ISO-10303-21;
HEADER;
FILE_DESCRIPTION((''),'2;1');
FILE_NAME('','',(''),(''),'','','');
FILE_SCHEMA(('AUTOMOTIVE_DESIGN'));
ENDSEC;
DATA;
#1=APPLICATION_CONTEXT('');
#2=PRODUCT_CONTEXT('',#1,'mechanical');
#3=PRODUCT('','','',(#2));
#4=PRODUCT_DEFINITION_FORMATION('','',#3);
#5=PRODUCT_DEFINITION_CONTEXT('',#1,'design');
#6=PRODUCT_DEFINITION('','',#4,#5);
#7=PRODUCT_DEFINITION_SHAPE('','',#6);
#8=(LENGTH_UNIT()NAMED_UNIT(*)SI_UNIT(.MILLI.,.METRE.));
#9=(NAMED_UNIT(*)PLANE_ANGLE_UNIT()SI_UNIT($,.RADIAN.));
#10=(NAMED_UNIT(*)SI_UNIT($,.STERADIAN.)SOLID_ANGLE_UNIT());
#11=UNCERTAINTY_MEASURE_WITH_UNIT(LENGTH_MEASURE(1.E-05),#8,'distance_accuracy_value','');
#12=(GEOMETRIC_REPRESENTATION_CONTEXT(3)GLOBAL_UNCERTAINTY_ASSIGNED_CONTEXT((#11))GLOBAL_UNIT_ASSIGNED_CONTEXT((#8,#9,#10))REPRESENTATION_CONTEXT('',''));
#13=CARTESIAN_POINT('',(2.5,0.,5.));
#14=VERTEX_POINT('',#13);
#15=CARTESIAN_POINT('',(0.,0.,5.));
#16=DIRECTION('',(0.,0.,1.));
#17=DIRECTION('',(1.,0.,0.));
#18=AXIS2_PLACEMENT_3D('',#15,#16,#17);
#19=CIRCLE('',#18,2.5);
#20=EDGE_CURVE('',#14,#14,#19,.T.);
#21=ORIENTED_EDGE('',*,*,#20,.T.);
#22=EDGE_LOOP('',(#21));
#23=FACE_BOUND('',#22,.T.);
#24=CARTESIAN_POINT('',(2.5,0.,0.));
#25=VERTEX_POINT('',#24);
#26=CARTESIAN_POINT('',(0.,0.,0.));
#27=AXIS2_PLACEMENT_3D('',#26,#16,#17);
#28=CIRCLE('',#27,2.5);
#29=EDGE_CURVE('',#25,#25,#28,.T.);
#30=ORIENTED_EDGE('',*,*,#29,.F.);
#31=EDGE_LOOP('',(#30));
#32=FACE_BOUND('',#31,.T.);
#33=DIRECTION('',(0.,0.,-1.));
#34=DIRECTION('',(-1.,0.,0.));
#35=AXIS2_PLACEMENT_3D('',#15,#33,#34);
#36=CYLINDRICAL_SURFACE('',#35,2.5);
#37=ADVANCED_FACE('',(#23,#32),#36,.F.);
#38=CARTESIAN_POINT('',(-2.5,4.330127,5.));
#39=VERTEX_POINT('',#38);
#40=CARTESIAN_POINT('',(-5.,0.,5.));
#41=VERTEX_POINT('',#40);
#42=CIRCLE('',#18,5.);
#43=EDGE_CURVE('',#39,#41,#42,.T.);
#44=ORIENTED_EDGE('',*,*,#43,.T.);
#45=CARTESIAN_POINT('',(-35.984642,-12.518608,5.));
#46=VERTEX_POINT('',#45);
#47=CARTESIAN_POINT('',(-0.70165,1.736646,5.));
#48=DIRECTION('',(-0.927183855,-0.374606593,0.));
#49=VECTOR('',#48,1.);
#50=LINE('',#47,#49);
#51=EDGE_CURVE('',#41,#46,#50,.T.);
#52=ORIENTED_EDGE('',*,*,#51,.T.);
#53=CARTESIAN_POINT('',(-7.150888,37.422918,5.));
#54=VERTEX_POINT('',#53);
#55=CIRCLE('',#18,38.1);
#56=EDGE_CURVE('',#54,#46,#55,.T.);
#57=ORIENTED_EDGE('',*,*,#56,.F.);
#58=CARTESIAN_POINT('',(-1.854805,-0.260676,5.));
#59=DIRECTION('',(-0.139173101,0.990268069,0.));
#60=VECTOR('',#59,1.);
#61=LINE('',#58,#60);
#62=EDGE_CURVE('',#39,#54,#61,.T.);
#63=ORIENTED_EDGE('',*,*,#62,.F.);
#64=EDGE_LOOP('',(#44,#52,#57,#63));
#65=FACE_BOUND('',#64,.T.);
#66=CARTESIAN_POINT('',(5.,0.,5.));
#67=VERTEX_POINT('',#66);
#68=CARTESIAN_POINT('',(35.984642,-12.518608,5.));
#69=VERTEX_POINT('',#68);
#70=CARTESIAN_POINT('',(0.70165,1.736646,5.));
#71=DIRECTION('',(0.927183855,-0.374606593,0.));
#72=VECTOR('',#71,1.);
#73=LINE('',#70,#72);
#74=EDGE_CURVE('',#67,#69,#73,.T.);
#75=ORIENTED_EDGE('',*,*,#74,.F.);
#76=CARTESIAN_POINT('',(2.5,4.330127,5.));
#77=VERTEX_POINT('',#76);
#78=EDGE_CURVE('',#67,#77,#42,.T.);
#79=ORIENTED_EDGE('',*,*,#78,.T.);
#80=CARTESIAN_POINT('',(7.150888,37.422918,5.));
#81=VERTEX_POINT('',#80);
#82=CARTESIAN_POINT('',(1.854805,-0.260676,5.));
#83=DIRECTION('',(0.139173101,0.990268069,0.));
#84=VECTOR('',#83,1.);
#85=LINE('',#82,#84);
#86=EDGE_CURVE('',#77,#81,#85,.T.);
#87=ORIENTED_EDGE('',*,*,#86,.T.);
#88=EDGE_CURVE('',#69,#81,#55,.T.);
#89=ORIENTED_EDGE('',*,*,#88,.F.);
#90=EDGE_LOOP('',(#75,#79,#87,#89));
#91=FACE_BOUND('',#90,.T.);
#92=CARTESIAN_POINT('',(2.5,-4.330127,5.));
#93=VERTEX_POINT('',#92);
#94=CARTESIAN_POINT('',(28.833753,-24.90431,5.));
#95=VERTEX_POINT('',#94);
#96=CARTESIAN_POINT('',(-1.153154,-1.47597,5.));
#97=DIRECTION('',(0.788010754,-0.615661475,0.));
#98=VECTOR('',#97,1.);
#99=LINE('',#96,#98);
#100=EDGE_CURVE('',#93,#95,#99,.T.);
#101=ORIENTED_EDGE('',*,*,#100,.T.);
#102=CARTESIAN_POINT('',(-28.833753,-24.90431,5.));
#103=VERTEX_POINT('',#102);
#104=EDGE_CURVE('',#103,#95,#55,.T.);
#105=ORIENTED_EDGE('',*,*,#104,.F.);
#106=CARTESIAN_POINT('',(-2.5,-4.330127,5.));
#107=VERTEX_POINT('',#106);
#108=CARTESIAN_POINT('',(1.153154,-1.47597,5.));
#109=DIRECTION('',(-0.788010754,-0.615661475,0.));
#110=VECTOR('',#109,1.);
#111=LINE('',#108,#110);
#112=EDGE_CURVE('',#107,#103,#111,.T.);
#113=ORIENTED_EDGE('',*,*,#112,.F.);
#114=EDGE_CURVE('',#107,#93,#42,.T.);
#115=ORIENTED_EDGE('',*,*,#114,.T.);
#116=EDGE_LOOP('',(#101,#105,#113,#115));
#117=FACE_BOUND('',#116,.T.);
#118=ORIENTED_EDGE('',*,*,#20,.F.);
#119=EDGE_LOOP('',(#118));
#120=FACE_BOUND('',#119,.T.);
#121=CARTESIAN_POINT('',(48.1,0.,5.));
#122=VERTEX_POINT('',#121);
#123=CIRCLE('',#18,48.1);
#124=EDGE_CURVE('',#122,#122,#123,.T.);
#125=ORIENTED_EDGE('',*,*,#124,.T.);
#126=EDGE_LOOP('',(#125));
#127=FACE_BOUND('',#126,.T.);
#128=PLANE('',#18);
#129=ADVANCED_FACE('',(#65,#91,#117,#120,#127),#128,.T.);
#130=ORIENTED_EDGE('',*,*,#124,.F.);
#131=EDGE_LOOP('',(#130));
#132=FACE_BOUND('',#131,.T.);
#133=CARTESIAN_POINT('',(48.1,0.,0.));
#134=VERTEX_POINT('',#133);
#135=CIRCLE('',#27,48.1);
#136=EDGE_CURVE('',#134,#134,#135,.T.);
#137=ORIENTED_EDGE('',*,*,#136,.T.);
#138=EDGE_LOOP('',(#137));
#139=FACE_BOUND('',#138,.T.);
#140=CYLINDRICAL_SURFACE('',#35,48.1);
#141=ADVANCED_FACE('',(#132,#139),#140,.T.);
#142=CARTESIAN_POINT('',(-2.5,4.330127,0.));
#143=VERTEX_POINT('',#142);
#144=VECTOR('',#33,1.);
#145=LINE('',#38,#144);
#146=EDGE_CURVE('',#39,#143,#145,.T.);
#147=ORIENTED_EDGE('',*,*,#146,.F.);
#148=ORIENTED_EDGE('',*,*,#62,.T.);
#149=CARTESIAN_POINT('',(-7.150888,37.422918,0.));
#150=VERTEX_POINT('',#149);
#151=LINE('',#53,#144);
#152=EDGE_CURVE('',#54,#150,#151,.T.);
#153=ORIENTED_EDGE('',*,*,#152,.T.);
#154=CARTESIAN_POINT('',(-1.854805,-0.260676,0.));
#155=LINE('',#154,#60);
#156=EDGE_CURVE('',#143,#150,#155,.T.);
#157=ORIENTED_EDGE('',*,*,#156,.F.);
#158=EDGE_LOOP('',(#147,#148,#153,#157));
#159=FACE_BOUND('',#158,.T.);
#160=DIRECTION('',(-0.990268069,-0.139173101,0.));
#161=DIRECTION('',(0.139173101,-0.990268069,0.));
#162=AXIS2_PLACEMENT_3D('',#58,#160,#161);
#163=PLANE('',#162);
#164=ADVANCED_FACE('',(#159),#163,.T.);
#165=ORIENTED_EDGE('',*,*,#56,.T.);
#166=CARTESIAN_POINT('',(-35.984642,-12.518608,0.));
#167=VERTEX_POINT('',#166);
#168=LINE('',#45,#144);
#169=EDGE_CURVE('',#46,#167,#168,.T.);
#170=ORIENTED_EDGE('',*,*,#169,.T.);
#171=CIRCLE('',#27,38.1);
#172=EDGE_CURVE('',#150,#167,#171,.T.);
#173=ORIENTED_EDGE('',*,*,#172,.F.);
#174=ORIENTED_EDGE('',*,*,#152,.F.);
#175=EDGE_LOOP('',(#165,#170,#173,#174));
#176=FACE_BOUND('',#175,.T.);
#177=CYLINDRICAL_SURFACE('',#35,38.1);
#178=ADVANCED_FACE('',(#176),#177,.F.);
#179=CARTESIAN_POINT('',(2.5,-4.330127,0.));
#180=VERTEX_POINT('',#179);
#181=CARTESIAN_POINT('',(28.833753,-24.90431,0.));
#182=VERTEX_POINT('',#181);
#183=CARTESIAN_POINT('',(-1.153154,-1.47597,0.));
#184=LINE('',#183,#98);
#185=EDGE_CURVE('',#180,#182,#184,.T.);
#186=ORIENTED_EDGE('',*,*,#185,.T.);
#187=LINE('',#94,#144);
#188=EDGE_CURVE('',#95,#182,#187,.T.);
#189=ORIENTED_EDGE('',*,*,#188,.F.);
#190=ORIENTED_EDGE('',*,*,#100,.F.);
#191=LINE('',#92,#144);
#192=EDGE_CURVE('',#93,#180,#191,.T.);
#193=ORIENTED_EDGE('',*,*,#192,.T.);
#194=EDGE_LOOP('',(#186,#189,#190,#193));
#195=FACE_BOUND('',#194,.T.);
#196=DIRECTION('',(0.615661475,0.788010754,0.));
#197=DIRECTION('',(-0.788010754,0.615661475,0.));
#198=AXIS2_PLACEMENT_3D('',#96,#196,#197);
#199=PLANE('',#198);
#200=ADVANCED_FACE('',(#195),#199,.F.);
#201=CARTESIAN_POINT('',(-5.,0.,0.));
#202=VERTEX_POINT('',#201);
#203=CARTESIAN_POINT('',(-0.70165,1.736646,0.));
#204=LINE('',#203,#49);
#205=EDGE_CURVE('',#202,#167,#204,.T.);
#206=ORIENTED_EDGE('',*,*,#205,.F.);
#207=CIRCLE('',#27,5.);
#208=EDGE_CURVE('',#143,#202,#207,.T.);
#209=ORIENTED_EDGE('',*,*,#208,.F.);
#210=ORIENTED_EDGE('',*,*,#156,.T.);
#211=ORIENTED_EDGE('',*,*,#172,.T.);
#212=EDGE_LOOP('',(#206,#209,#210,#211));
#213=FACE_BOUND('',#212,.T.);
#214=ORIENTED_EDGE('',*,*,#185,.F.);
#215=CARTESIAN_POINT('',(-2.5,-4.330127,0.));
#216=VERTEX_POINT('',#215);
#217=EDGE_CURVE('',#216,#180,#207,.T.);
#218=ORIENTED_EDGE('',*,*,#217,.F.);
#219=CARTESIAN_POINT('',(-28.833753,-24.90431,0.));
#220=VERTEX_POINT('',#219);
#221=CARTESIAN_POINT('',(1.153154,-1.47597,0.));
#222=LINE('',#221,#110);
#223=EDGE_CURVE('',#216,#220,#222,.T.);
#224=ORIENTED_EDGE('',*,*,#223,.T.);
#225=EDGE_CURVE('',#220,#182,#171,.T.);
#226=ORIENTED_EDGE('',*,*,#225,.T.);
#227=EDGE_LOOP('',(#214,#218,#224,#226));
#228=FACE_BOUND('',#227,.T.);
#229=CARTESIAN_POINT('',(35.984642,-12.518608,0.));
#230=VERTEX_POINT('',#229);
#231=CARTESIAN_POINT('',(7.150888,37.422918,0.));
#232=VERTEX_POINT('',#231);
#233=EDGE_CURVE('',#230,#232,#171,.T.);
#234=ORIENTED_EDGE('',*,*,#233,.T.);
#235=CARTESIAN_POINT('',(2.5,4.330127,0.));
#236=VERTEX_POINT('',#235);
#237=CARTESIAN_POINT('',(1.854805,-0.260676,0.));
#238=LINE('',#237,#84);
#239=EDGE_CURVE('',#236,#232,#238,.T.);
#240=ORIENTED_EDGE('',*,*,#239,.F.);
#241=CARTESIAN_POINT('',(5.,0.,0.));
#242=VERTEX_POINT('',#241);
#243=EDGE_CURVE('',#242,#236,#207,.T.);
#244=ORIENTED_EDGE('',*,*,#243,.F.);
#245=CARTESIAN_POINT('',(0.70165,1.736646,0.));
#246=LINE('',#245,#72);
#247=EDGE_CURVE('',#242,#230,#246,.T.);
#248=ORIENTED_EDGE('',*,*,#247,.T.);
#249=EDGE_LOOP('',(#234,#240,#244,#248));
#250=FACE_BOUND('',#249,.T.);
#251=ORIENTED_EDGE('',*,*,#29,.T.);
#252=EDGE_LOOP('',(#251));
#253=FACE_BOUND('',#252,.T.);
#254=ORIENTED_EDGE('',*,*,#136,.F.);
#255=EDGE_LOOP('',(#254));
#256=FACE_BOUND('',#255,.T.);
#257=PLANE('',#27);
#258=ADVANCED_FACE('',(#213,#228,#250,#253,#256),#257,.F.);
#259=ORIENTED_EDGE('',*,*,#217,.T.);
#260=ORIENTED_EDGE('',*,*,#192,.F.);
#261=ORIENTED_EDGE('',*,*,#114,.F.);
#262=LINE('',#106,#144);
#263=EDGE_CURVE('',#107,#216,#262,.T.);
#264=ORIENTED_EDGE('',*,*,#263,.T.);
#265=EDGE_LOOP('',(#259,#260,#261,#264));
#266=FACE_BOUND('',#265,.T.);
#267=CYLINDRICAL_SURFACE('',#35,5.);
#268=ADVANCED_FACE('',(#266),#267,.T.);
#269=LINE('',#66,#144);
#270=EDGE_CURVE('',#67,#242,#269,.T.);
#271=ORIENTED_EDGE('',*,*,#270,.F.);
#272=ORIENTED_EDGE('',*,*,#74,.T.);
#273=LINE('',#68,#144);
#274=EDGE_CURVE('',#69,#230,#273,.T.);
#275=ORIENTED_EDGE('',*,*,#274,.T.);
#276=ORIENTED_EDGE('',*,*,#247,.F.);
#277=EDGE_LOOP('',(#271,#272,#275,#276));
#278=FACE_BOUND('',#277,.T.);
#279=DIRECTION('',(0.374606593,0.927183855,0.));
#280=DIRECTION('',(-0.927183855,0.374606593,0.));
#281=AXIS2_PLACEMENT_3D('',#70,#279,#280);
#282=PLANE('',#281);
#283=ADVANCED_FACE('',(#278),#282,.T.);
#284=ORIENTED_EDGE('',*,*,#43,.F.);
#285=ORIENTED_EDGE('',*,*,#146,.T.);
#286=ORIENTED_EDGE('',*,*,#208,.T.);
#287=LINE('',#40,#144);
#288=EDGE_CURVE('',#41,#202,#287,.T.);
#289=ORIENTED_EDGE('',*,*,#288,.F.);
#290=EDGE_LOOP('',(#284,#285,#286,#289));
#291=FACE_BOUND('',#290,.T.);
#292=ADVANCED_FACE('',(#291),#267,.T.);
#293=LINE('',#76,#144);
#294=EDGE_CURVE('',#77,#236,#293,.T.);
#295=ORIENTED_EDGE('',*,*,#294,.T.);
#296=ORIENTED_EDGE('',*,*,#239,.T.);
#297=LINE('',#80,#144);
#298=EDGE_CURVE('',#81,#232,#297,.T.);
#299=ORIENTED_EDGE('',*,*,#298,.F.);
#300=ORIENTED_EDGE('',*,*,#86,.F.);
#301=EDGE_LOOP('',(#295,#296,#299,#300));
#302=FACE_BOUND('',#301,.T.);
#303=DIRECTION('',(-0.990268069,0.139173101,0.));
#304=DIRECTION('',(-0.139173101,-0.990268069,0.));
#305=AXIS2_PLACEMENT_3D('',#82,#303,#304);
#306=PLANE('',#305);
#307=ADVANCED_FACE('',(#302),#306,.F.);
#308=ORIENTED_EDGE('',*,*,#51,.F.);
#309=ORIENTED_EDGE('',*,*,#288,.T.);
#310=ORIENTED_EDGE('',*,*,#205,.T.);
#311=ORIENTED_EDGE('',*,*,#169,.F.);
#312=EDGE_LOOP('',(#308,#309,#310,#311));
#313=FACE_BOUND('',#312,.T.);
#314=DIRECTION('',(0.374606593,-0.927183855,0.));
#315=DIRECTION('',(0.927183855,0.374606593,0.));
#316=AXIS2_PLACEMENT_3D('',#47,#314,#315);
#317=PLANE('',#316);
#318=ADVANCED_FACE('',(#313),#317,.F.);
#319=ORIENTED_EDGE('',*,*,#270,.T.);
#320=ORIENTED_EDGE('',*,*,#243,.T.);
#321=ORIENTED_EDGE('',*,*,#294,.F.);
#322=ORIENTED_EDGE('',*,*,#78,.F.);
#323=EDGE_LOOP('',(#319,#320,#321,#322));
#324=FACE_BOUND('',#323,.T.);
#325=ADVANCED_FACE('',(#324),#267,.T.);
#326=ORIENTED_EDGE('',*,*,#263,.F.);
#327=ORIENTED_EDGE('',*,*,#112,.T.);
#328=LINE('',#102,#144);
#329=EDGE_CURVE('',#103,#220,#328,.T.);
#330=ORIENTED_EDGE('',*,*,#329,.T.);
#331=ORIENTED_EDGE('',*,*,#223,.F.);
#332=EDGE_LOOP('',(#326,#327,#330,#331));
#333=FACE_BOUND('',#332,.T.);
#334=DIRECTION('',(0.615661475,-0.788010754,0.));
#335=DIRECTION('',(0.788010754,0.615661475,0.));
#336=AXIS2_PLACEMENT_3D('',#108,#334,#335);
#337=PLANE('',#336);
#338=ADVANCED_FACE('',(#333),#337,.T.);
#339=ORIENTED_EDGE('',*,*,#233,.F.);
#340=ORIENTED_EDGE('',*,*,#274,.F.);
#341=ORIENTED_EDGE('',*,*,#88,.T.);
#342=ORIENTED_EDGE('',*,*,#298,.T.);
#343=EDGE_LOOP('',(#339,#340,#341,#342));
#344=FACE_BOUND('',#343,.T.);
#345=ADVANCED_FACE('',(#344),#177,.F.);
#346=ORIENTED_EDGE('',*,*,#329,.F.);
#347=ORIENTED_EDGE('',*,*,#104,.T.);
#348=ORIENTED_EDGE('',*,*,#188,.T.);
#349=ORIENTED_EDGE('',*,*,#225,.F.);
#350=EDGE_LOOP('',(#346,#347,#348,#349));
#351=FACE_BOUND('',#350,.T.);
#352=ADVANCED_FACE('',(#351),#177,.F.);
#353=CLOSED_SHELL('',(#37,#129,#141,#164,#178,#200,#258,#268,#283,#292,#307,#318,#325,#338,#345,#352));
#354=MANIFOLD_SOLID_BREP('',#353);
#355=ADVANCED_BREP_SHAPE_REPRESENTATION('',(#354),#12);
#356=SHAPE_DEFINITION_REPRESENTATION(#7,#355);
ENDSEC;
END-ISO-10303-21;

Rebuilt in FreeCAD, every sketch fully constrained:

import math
import FreeCAD as App
import Part
import Sketcher

V = App.Vector
Q = App.Units.Quantity

doc = App.newDocument("Part")
body = doc.addObject("PartDesign::Body", "Body")

sketch1 = body.newObject("Sketcher::SketchObject", "Sketch")
sketch1.AttachmentSupport = (doc.getObject("XY_Plane"), [""])
sketch1.MapMode = "FlatFace"
sketch1.addGeometry(Part.Circle(V(0, 0, 0), V(0, 0, 1), 48.1), False)
sketch1.addGeometry(Part.ArcOfCircle(Part.Circle(V(0, 0, 0), V(0, 0, 1), 38.1), math.radians(-139), math.radians(-41)), False)
sketch1.addGeometry(Part.LineSegment(V(-28.8, -24.9, 0), V(-2.5, -4.3, 0)), False)
sketch1.addGeometry(Part.ArcOfCircle(Part.Circle(V(0, 0, 0), V(0, 0, 1), 5), math.radians(-120), math.radians(-60)), False)
sketch1.addGeometry(Part.LineSegment(V(2.5, -4.3, 0), V(28.8, -24.9, 0)), False)
sketch1.addGeometry(Part.ArcOfCircle(Part.Circle(V(0, 0, 0), V(0, 0, 1), 38.1), math.radians(101), math.radians(199)), False)
sketch1.addGeometry(Part.LineSegment(V(-7.2, 37.4, 0), V(-2.5, 4.3, 0)), False)
sketch1.addGeometry(Part.ArcOfCircle(Part.Circle(V(0, 0, 0), V(0, 0, 1), 5), math.radians(120), math.radians(180)), False)
sketch1.addGeometry(Part.LineSegment(V(-5, 0, 0), V(-36, -12.5, 0)), False)
sketch1.addGeometry(Part.Circle(V(0, 0, 0), V(0, 0, 1), 2.5), False)
sketch1.addGeometry(Part.ArcOfCircle(Part.Circle(V(0, 0, 0), V(0, 0, 1), 38.1), math.radians(-19), math.radians(79)), False)
sketch1.addGeometry(Part.LineSegment(V(36, -12.5, 0), V(5, 0, 0)), False)
sketch1.addGeometry(Part.ArcOfCircle(Part.Circle(V(0, 0, 0), V(0, 0, 1), 5), math.radians(0), math.radians(60)), False)
sketch1.addGeometry(Part.LineSegment(V(2.5, 4.3, 0), V(7.2, 37.4, 0)), False)
sketch1.addConstraint(Sketcher.Constraint("Coincident", 1, 1, 2, 1))
sketch1.addConstraint(Sketcher.Constraint("Coincident", 2, 2, 3, 1))
sketch1.addConstraint(Sketcher.Constraint("Coincident", 3, 2, 4, 1))
sketch1.addConstraint(Sketcher.Constraint("Coincident", 4, 2, 1, 2))
sketch1.addConstraint(Sketcher.Constraint("Coincident", 5, 1, 6, 1))
sketch1.addConstraint(Sketcher.Constraint("Coincident", 6, 2, 7, 1))
sketch1.addConstraint(Sketcher.Constraint("Coincident", 7, 2, 8, 1))
sketch1.addConstraint(Sketcher.Constraint("Coincident", 8, 2, 5, 2))
sketch1.addConstraint(Sketcher.Constraint("Coincident", 10, 1, 11, 1))
sketch1.addConstraint(Sketcher.Constraint("Coincident", 11, 2, 12, 1))
sketch1.addConstraint(Sketcher.Constraint("Coincident", 12, 2, 13, 1))
sketch1.addConstraint(Sketcher.Constraint("Coincident", 13, 2, 10, 2))
sketch1.addConstraint(Sketcher.Constraint("Coincident", 0, 3, -1, 1))
sketch1.addConstraint(Sketcher.Constraint("Coincident", 1, 3, -1, 1))
sketch1.addConstraint(Sketcher.Constraint("Coincident", 3, 3, -1, 1))
sketch1.addConstraint(Sketcher.Constraint("Coincident", 5, 3, -1, 1))
sketch1.addConstraint(Sketcher.Constraint("Coincident", 7, 3, -1, 1))
sketch1.addConstraint(Sketcher.Constraint("Coincident", 9, 3, -1, 1))
sketch1.addConstraint(Sketcher.Constraint("Coincident", 10, 3, -1, 1))
sketch1.addConstraint(Sketcher.Constraint("Coincident", 12, 3, -1, 1))
sketch1.addConstraint(Sketcher.Constraint("Equal", 1, 5))
sketch1.addConstraint(Sketcher.Constraint("Equal", 3, 7))
sketch1.addConstraint(Sketcher.Constraint("Equal", 5, 10))
sketch1.addConstraint(Sketcher.Constraint("Equal", 7, 12))
sketch1.addConstraint(Sketcher.Constraint("PointOnObject", 7, 2, -1))
sketch1.addConstraint(Sketcher.Constraint("PointOnObject", 11, 2, -1))
sketch1.addConstraint(Sketcher.Constraint("Horizontal", 2, 2, 3, 2))
sketch1.addConstraint(Sketcher.Constraint("Horizontal", 1, 1, 4, 2))
sketch1.addConstraint(Sketcher.Constraint("Horizontal", 8, 2, 10, 1))
sketch1.addConstraint(Sketcher.Constraint("Horizontal", 6, 2, 12, 2))
sketch1.addConstraint(Sketcher.Constraint("Horizontal", 5, 1, 13, 2))
sketch1.addConstraint(Sketcher.Constraint("Vertical", 2, 2, 6, 2))
sketch1.addConstraint(Sketcher.Constraint("Equal", 4, 6))
sketch1.addConstraint(Sketcher.Constraint("Equal", 6, 8))
sketch1.addConstraint(Sketcher.Constraint("Diameter", 9, 5.0))
sketch1.addConstraint(Sketcher.Constraint("Radius", 3, 5.0))
sketch1.addConstraint(Sketcher.Constraint("Diameter", 0, 96.2))
sketch1.addConstraint(Sketcher.Constraint("Radius", 1, 38.1))
sketch1.addConstraint(Sketcher.Constraint("Angle", 2, Q("38 deg")))
sketch1.addConstraint(Sketcher.Constraint("Angle", 6, Q("-82 deg")))
pad1 = body.newObject("PartDesign::Pad", "Pad")
pad1.Profile = sketch1
pad1.Length = 5

doc.recompute()
